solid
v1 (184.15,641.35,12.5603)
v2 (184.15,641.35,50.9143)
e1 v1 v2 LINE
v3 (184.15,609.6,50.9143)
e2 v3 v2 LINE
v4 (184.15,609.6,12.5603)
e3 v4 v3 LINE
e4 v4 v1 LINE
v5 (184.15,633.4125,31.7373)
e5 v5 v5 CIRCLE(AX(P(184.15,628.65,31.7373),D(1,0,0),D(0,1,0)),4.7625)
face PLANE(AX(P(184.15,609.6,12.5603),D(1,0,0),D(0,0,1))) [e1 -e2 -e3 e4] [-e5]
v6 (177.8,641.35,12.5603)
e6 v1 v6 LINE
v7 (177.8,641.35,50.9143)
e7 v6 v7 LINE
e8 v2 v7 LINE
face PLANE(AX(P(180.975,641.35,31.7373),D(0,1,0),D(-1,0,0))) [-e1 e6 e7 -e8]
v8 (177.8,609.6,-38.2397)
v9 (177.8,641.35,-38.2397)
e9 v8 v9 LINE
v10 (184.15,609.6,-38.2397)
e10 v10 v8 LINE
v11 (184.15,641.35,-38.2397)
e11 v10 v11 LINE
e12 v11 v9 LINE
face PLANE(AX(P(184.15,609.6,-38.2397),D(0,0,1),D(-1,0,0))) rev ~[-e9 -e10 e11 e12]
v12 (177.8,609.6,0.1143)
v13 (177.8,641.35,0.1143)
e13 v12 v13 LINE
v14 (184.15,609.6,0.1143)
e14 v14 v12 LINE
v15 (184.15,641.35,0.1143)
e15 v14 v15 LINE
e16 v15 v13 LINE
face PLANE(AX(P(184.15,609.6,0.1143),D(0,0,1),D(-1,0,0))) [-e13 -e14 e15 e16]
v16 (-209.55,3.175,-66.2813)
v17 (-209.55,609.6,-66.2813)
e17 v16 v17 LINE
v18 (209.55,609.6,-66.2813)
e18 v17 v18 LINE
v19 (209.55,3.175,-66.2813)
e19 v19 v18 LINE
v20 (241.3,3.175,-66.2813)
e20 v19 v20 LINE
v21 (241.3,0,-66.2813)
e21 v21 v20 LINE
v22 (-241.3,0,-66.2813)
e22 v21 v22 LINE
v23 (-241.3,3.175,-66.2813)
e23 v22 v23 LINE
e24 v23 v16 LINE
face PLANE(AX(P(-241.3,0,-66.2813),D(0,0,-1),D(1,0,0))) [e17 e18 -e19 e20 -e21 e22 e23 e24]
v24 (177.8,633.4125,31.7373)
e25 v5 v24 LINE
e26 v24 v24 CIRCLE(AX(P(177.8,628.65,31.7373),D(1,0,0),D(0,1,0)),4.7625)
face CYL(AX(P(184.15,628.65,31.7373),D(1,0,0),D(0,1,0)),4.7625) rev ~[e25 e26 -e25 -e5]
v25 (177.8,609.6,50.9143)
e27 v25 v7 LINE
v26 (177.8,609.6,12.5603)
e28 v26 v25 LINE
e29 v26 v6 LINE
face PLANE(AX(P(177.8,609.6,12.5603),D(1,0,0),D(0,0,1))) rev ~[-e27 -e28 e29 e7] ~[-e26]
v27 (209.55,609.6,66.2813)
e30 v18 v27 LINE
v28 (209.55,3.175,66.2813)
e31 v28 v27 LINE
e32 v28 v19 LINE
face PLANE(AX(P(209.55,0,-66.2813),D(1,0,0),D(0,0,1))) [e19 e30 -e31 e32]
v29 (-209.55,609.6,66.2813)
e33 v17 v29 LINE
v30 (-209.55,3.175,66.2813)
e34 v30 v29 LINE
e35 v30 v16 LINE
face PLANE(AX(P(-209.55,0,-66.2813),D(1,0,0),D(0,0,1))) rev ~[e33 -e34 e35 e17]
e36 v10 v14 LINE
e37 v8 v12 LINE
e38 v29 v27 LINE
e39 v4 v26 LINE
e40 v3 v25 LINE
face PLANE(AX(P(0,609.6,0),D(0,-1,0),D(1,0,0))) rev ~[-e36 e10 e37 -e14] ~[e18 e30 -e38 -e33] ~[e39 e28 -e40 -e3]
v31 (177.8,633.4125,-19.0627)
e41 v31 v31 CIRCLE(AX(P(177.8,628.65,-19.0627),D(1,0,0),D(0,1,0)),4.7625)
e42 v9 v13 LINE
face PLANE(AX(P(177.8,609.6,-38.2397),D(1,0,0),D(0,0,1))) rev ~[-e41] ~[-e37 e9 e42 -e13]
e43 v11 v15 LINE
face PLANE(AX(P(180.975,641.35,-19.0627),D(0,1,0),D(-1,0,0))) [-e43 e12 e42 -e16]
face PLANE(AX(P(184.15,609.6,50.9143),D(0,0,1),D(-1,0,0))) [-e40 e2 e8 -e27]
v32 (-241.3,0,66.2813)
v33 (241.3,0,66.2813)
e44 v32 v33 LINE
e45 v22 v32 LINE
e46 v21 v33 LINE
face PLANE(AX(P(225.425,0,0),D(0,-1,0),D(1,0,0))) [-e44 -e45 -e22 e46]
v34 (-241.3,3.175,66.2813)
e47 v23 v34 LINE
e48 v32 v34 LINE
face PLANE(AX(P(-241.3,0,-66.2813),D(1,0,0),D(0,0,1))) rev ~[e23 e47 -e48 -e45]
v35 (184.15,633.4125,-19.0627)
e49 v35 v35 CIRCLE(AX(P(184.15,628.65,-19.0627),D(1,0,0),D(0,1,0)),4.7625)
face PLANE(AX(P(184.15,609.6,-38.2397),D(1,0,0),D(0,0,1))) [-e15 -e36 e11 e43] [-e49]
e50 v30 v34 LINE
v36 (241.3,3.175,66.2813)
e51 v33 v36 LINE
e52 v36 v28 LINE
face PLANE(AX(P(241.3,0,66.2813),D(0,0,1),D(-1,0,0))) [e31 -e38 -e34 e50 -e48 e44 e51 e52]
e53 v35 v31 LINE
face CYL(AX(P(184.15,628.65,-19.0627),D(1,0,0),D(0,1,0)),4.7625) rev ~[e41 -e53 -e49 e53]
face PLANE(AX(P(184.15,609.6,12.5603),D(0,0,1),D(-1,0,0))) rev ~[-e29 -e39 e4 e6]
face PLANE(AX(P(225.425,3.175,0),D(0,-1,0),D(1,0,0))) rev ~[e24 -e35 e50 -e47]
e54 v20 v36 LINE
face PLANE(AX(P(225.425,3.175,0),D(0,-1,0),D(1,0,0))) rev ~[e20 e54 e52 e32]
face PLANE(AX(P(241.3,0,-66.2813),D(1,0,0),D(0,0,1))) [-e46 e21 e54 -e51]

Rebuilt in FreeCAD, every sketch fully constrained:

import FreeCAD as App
import Part
import Sketcher
from FreeCAD import Vector
Q = App.Units.Quantity

doc = App.newDocument("Part")
body = doc.addObject("PartDesign::Body", "Body")

sketch1 = doc.addObject("Sketcher::SketchObject", "Sketch")
body.addObject(sketch1)
sketch1.AttachmentSupport = (doc.XZ_Plane, [""])
sketch1.MapMode = "FlatFace"
sketch1.addGeometry(Part.LineSegment(Vector(-210, 66, 0), Vector(-210, -66, 0)), False)
sketch1.addGeometry(Part.LineSegment(Vector(-210, -66, 0), Vector(210, -66, 0)), False)
sketch1.addGeometry(Part.LineSegment(Vector(210, -66, 0), Vector(210, 66, 0)), False)
sketch1.addGeometry(Part.LineSegment(Vector(210, 66, 0), Vector(-210, 66, 0)), False)
sketch1.addConstraint(Sketcher.Constraint("Coincident", 0, 2, 1, 1))
sketch1.addConstraint(Sketcher.Constraint("Coincident", 1, 2, 2, 1))
sketch1.addConstraint(Sketcher.Constraint("Coincident", 2, 2, 3, 1))
sketch1.addConstraint(Sketcher.Constraint("Coincident", 3, 2, 0, 1))
sketch1.addConstraint(Sketcher.Constraint("Vertical", 0))
sketch1.addConstraint(Sketcher.Constraint("Horizontal", 1))
sketch1.addConstraint(Sketcher.Constraint("Vertical", 2))
sketch1.addConstraint(Sketcher.Constraint("Horizontal", 3))
sketch1.addConstraint(Sketcher.Constraint("Symmetric", 0, 2, 2, 2, -1, 1))
sketch1.addConstraint(Sketcher.Constraint("DistanceX", 1, 1, 1, 2, Q("16.5 in")))
sketch1.addConstraint(Sketcher.Constraint("DistanceY", 0, 2, 0, 1, Q("5.219 in")))
pad1 = doc.addObject("PartDesign::Pad", "Pad")
body.addObject(pad1)
pad1.Profile = sketch1
pad1.Length = Q("24 in")
pad1.Reversed = True

sketch2 = doc.addObject("Sketcher::SketchObject", "Sketch001")
body.addObject(sketch2)
sketch2.AttachmentSupport = (doc.XZ_Plane, [""])
sketch2.MapMode = "FlatFace"
sketch2.addGeometry(Part.LineSegment(Vector(241, -66, 0), Vector(241, 66, 0)), False)
sketch2.addGeometry(Part.LineSegment(Vector(241, 66, 0), Vector(-241, 66, 0)), False)
sketch2.addGeometry(Part.LineSegment(Vector(-241, 66, 0), Vector(-241, -66, 0)), False)
sketch2.addGeometry(Part.LineSegment(Vector(-241, -66, 0), Vector(241, -66, 0)), False)
sketch2.addConstraint(Sketcher.Constraint("Coincident", 0, 2, 1, 1))
sketch2.addConstraint(Sketcher.Constraint("Coincident", 1, 2, 2, 1))
sketch2.addConstraint(Sketcher.Constraint("Coincident", 2, 2, 3, 1))
sketch2.addConstraint(Sketcher.Constraint("Coincident", 3, 2, 0, 1))
sketch2.addConstraint(Sketcher.Constraint("Vertical", 0))
sketch2.addConstraint(Sketcher.Constraint("Horizontal", 1))
sketch2.addConstraint(Sketcher.Constraint("Vertical", 2))
sketch2.addConstraint(Sketcher.Constraint("Horizontal", 3))
sketch2.addConstraint(Sketcher.Constraint("Symmetric", 0, 2, 2, 2, -1, 1))
sketch2.addConstraint(Sketcher.Constraint("DistanceX", 1, 2, 1, 1, Q("19 in")))
sketch2.addConstraint(Sketcher.Constraint("DistanceY", 0, 1, 0, 2, Q("5.219 in")))
pad2 = doc.addObject("PartDesign::Pad", "Pad001")
body.addObject(pad2)
pad2.Profile = sketch2
pad2.Length = Q("0.125 in")
pad2.Reversed = True

sketch3 = doc.addObject("Sketcher::SketchObject", "Sketch002")
body.addObject(sketch3)
sketch3.AttachmentSupport = (doc.XZ_Plane, [""])
sketch3.MapMode = "FlatFace"
sketch3.AttachmentOffset = App.Placement(Vector(0, 0, -24 * 25.4), App.Rotation())
sketch3.addGeometry(Part.LineSegment(Vector(184, 51, 0), Vector(184, 13, 0)), False)
sketch3.addGeometry(Part.LineSegment(Vector(184, 13, 0), Vector(178, 13, 0)), False)
sketch3.addGeometry(Part.LineSegment(Vector(178, 13, 0), Vector(178, 51, 0)), False)
sketch3.addGeometry(Part.LineSegment(Vector(178, 51, 0), Vector(184, 51, 0)), False)
sketch3.addGeometry(Part.LineSegment(Vector(184, 0, 0), Vector(184, -38, 0)), False)
sketch3.addGeometry(Part.LineSegment(Vector(184, -38, 0), Vector(178, -38, 0)), False)
sketch3.addGeometry(Part.LineSegment(Vector(178, -38, 0), Vector(178, 0, 0)), False)
sketch3.addGeometry(Part.LineSegment(Vector(178, 0, 0), Vector(184, 0, 0)), False)
sketch3.addConstraint(Sketcher.Constraint("Coincident", 0, 2, 1, 1))
sketch3.addConstraint(Sketcher.Constraint("Coincident", 1, 2, 2, 1))
sketch3.addConstraint(Sketcher.Constraint("Coincident", 2, 2, 3, 1))
sketch3.addConstraint(Sketcher.Constraint("Coincident", 3, 2, 0, 1))
sketch3.addConstraint(Sketcher.Constraint("Coincident", 4, 2, 5, 1))
sketch3.addConstraint(Sketcher.Constraint("Coincident", 5, 2, 6, 1))
sketch3.addConstraint(Sketcher.Constraint("Coincident", 6, 2, 7, 1))
sketch3.addConstraint(Sketcher.Constraint("Coincident", 7, 2, 4, 1))
sketch3.addConstraint(Sketcher.Constraint("Vertical", 0))
sketch3.addConstraint(Sketcher.Constraint("Horizontal", 1))
sketch3.addConstraint(Sketcher.Constraint("Vertical", 2))
sketch3.addConstraint(Sketcher.Constraint("Horizontal", 3))
sketch3.addConstraint(Sketcher.Constraint("Vertical", 4))
sketch3.addConstraint(Sketcher.Constraint("Horizontal", 5))
sketch3.addConstraint(Sketcher.Constraint("Vertical", 6))
sketch3.addConstraint(Sketcher.Constraint("Horizontal", 7))
sketch3.addConstraint(Sketcher.Constraint("Vertical", 3, 2, 4, 2))
sketch3.addConstraint(Sketcher.Constraint("Vertical", 2, 2, 5, 2))
sketch3.addConstraint(Sketcher.Constraint("Equal", 2, 4))
sketch3.addConstraint(Sketcher.Constraint("DistanceX", -1, 1, 1, 2, Q("7 in")))
sketch3.addConstraint(Sketcher.Constraint("DistanceY", 4, 2, 0, 2, Q("2 in")))
sketch3.addConstraint(Sketcher.Constraint("DistanceX", 1, 2, 1, 1, Q("0.25 in")))
sketch3.addConstraint(Sketcher.Constraint("DistanceY", 0, 2, 0, 1, Q("1.51 in")))
sketch3.addConstraint(Sketcher.Constraint("DistanceY", -1, 1, 0, 2, Q("0.4945 in")))
pad3 = doc.addObject("PartDesign::Pad", "Pad002")
body.addObject(pad3)
pad3.Profile = sketch3
pad3.Length = Q("1.25 in")
pad3.Reversed = True

sketch4 = doc.addObject("Sketcher::SketchObject", "Sketch003")
body.addObject(sketch4)
sketch4.AttachmentSupport = (doc.YZ_Plane, [""])
sketch4.MapMode = "FlatFace"
sketch4.AttachmentOffset = App.Placement(Vector(0, 0, 7.25 * 25.4), App.Rotation())
sketch4.addGeometry(Part.Circle(Vector(628.6, 31.7, 0), Vector(0, 0, 1), 4.8), False)
sketch4.addGeometry(Part.Circle(Vector(628.6, -19.1, 0), Vector(0, 0, 1), 4.8), False)
sketch4.addConstraint(Sketcher.Constraint("Equal", 0, 1))
sketch4.addConstraint(Sketcher.Constraint("Vertical", 0, 3, 1, 3))
sketch4.addConstraint(Sketcher.Constraint("Diameter", 0, Q("0.375 in")))
sketch4.addConstraint(Sketcher.Constraint("DistanceY", 1, 3, 0, 3, Q("2 in")))
sketch4.addConstraint(Sketcher.Constraint("DistanceX", -1, 1, 0, 3, Q("24.75 in")))
sketch4.addConstraint(Sketcher.Constraint("DistanceY", -1, 1, 0, 3, Q("1.2495 in")))
pocket1 = doc.addObject("PartDesign::Pocket", "Pocket")
body.addObject(pocket1)
pocket1.Profile = sketch4
pocket1.Type = "ThroughAll"

doc.recompute()
